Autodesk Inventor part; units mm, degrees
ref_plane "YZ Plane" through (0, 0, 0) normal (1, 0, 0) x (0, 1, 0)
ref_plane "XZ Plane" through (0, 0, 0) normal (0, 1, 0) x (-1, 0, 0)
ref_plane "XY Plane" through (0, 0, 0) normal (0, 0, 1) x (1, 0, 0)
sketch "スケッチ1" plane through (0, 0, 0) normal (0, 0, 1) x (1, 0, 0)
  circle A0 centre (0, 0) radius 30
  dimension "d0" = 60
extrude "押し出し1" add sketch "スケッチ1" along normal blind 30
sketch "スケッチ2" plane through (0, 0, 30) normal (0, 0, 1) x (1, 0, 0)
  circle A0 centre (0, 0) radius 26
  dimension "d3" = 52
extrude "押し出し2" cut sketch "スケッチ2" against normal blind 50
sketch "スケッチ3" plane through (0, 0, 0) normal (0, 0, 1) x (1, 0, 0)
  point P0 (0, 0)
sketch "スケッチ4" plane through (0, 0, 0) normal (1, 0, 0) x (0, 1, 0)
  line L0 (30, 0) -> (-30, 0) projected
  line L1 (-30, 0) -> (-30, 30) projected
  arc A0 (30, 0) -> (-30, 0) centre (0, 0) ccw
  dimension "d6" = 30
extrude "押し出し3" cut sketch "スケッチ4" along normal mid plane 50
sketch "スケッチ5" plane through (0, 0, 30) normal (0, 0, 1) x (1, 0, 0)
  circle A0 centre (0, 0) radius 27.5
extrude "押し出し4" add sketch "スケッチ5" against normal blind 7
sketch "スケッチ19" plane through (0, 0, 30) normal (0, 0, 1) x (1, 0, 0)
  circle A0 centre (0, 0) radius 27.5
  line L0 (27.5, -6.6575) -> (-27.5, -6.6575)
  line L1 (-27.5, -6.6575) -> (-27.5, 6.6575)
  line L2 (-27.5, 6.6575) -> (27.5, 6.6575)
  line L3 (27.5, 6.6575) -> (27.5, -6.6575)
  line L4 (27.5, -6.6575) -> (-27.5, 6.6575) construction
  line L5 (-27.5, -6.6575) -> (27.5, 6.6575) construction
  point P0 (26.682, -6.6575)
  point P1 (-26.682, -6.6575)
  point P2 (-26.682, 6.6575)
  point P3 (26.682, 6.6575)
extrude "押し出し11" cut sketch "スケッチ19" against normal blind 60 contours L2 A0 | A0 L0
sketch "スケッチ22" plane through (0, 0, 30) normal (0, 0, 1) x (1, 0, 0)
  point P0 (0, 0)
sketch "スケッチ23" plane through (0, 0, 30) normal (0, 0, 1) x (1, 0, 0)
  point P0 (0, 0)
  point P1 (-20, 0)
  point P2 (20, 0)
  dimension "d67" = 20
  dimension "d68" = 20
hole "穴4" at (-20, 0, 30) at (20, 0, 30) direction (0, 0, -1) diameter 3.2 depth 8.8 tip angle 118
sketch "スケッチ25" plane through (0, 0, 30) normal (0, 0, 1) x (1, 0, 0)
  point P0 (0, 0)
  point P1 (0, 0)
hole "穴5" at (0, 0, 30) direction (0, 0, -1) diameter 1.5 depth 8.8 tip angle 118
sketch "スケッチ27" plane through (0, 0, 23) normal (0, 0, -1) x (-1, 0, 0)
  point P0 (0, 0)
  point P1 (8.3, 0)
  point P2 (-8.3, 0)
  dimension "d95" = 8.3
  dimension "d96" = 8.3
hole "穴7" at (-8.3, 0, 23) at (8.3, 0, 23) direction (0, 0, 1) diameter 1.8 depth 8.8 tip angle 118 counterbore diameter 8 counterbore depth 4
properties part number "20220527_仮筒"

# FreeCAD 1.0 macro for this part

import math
import FreeCAD as App
import Part
import Sketcher
from FreeCAD import Vector

doc = App.newDocument("Part")
body = doc.addObject("PartDesign::Body", "Body")

# Sketch on XY plane
sketch1 = body.newObject("Sketcher::SketchObject", "Sketch")
sketch1.AttachmentSupport = (doc.getObject("XY_Plane"), [""])
sketch1.MapMode = "FlatFace"
sketch1.addGeometry(Part.Circle(Vector(0, 0, 0), Vector(0, 0, 1), 30), False)
sketch1.addConstraint(Sketcher.Constraint("Coincident", 0, 3, -1, 1))
sketch1.addConstraint(Sketcher.Constraint("Diameter", 0, 60.0))
pad1 = body.newObject("PartDesign::Pad", "Pad")
pad1.Profile = sketch1
pad1.Length = 30

# Sketch on XY plane
sketch2 = body.newObject("Sketcher::SketchObject", "Sketch001")
sketch2.AttachmentSupport = (doc.getObject("XY_Plane"), [""])
sketch2.MapMode = "FlatFace"
sketch2.AttachmentOffset = App.Placement(Vector(0, 0, 30), App.Rotation())
sketch2.addGeometry(Part.Circle(Vector(0, 0, 0), Vector(0, 0, 1), 26), False)
sketch2.addConstraint(Sketcher.Constraint("Coincident", 0, 3, -1, 1))
sketch2.addConstraint(Sketcher.Constraint("Diameter", 0, 52.0))
pocket1 = body.newObject("PartDesign::Pocket", "Pocket")
pocket1.Profile = sketch2
pocket1.Length = 50

# Sketch on YZ plane
sketch3 = body.newObject("Sketcher::SketchObject", "Sketch002")
sketch3.AttachmentSupport = (doc.getObject("YZ_Plane"), [""])
sketch3.MapMode = "FlatFace"
sketch3.addGeometry(Part.LineSegment(Vector(-30, 0, 0), Vector(30, 0, 0)), False)
sketch3.addGeometry(Part.ArcOfCircle(Part.Circle(Vector(0, 0, 0), Vector(0, 0, 1), 30), math.radians(0), math.radians(180)), False)
sketch3.addConstraint(Sketcher.Constraint("Coincident", 0, 1, 1, 2))
sketch3.addConstraint(Sketcher.Constraint("Coincident", 1, 1, 0, 2))
sketch3.addConstraint(Sketcher.Constraint("Horizontal", 0))
sketch3.addConstraint(Sketcher.Constraint("Coincident", 1, 3, -1, 1))
sketch3.addConstraint(Sketcher.Constraint("PointOnObject", 0, 1, -1))
sketch3.addConstraint(Sketcher.Constraint("Radius", 1, 30.0))
pocket2 = body.newObject("PartDesign::Pocket", "Pocket001")
pocket2.Profile = sketch3
pocket2.Length = 50
pocket2.Midplane = True

# Sketch on XY plane
sketch4 = body.newObject("Sketcher::SketchObject", "Sketch003")
sketch4.AttachmentSupport = (doc.getObject("XY_Plane"), [""])
sketch4.MapMode = "FlatFace"
sketch4.AttachmentOffset = App.Placement(Vector(0, 0, 30), App.Rotation())
sketch4.addGeometry(Part.Circle(Vector(0, 0, 0), Vector(0, 0, 1), 28), False)
sketch4.addConstraint(Sketcher.Constraint("Coincident", 0, 3, -1, 1))
sketch4.addConstraint(Sketcher.Constraint("Diameter", 0, 55.0))
pad2 = body.newObject("PartDesign::Pad", "Pad001")
pad2.Profile = sketch4
pad2.Length = 7
pad2.Reversed = True

# Sketch on XY plane
sketch5 = body.newObject("Sketcher::SketchObject", "Sketch004")
sketch5.AttachmentSupport = (doc.getObject("XY_Plane"), [""])
sketch5.MapMode = "FlatFace"
sketch5.AttachmentOffset = App.Placement(Vector(0, 0, 30), App.Rotation())
sketch5.addGeometry(Part.LineSegment(Vector(-27, 7, 0), Vector(27, 7, 0)), False)
sketch5.addGeometry(Part.ArcOfCircle(Part.Circle(Vector(0, 0, 0), Vector(0, 0, 1), 28), math.radians(14), math.radians(166)), False)
sketch5.addGeometry(Part.ArcOfCircle(Part.Circle(Vector(0, 0, 0), Vector(0, 0, 1), 28), math.radians(-166), math.radians(-14)), False)
sketch5.addGeometry(Part.LineSegment(Vector(27, -7, 0), Vector(-27, -7, 0)), False)
sketch5.addConstraint(Sketcher.Constraint("Coincident", 0, 1, 1, 2))
sketch5.addConstraint(Sketcher.Constraint("Coincident", 1, 1, 0, 2))
sketch5.addConstraint(Sketcher.Constraint("Coincident", 2, 1, 3, 2))
sketch5.addConstraint(Sketcher.Constraint("Coincident", 3, 1, 2, 2))
sketch5.addConstraint(Sketcher.Constraint("Horizontal", 0))
sketch5.addConstraint(Sketcher.Constraint("Horizontal", 3))
sketch5.addConstraint(Sketcher.Constraint("Coincident", 1, 3, -1, 1))
sketch5.addConstraint(Sketcher.Constraint("Coincident", 2, 3, -1, 1))
sketch5.addConstraint(Sketcher.Constraint("Equal", 1, 2))
sketch5.addConstraint(Sketcher.Constraint("Vertical", 0, 1, 2, 1))
sketch5.addConstraint(Sketcher.Constraint("Radius", 1, 27.5))
sketch5.addConstraint(Sketcher.Constraint("DistanceX", 0, 1, 0, 2, 53.364))
pocket3 = body.newObject("PartDesign::Pocket", "Pocket002")
pocket3.Profile = sketch5
pocket3.Length = 60

# Sketch on XY plane
sketch6 = body.newObject("Sketcher::SketchObject", "Sketch005")
sketch6.AttachmentSupport = (doc.getObject("XY_Plane"), [""])
sketch6.MapMode = "FlatFace"
sketch6.AttachmentOffset = App.Placement(Vector(0, 0, 30), App.Rotation())
sketch6.addGeometry(Part.Circle(Vector(-20, 0, 0), Vector(0, 0, 1), 1.6), False)
sketch6.addGeometry(Part.Circle(Vector(20, 0, 0), Vector(0, 0, 1), 1.6), False)
sketch6.addConstraint(Sketcher.Constraint("Equal", 0, 1))
sketch6.addConstraint(Sketcher.Constraint("Symmetric", 0, 3, 1, 3, -1, 1))
sketch6.addConstraint(Sketcher.Constraint("PointOnObject", 0, 3, -1))
sketch6.addConstraint(Sketcher.Constraint("Diameter", 0, 3.2))
sketch6.addConstraint(Sketcher.Constraint("DistanceX", 0, 3, -1, 1, 20.0))
doc.recompute()
hole = body.newObject("PartDesign::Hole", "Hole")
hole.Profile = sketch6
hole.ThreadType = "None"
hole.Diameter = 3.2
hole.DepthType = "Dimension"
hole.Depth = 8.8
hole.DrillPoint = "Angled"
hole.DrillPointAngle = 118

# Sketch on XY plane
sketch7 = body.newObject("Sketcher::SketchObject", "Sketch006")
sketch7.AttachmentSupport = (doc.getObject("XY_Plane"), [""])
sketch7.MapMode = "FlatFace"
sketch7.AttachmentOffset = App.Placement(Vector(0, 0, 30), App.Rotation())
sketch7.addGeometry(Part.Circle(Vector(0, 0, 0), Vector(0, 0, 1), 0.8), False)
sketch7.addConstraint(Sketcher.Constraint("Coincident", 0, 3, -1, 1))
sketch7.addConstraint(Sketcher.Constraint("Diameter", 0, 1.5))
doc.recompute()
hole2 = body.newObject("PartDesign::Hole", "Hole001")
hole2.Profile = sketch7
hole2.ThreadType = "None"
hole2.Diameter = 1.5
hole2.DepthType = "Dimension"
hole2.Depth = 8.8
hole2.DrillPoint = "Angled"
hole2.DrillPointAngle = 118

# Sketch on XY plane
sketch8 = body.newObject("Sketcher::SketchObject", "Sketch007")
sketch8.AttachmentSupport = (doc.getObject("XY_Plane"), [""])
sketch8.MapMode = "FlatFace"
sketch8.AttachmentOffset = App.Placement(Vector(0, 0, 23), App.Rotation())
sketch8.addGeometry(Part.Circle(Vector(-8.3, 0, 0), Vector(0, 0, 1), 0.9), False)
sketch8.addGeometry(Part.Circle(Vector(8.3, 0, 0), Vector(0, 0, 1), 0.9), False)
sketch8.addConstraint(Sketcher.Constraint("Equal", 0, 1))
sketch8.addConstraint(Sketcher.Constraint("Symmetric", 0, 3, 1, 3, -1, 1))
sketch8.addConstraint(Sketcher.Constraint("PointOnObject", 0, 3, -1))
sketch8.addConstraint(Sketcher.Constraint("Diameter", 0, 1.8))
sketch8.addConstraint(Sketcher.Constraint("DistanceX", 0, 3, -1, 1, 8.3))
doc.recompute()
hole3 = body.newObject("PartDesign::Hole", "Hole002")
hole3.Profile = sketch8
hole3.ThreadType = "None"
hole3.Diameter = 1.8
hole3.DepthType = "Dimension"
hole3.Depth = 8.8
hole3.DrillPoint = "Angled"
hole3.DrillPointAngle = 118
hole3.HoleCutType = "Counterbore"
hole3.HoleCutDiameter = 8
hole3.HoleCutDepth = 4
hole3.Reversed = True

doc.recompute()
